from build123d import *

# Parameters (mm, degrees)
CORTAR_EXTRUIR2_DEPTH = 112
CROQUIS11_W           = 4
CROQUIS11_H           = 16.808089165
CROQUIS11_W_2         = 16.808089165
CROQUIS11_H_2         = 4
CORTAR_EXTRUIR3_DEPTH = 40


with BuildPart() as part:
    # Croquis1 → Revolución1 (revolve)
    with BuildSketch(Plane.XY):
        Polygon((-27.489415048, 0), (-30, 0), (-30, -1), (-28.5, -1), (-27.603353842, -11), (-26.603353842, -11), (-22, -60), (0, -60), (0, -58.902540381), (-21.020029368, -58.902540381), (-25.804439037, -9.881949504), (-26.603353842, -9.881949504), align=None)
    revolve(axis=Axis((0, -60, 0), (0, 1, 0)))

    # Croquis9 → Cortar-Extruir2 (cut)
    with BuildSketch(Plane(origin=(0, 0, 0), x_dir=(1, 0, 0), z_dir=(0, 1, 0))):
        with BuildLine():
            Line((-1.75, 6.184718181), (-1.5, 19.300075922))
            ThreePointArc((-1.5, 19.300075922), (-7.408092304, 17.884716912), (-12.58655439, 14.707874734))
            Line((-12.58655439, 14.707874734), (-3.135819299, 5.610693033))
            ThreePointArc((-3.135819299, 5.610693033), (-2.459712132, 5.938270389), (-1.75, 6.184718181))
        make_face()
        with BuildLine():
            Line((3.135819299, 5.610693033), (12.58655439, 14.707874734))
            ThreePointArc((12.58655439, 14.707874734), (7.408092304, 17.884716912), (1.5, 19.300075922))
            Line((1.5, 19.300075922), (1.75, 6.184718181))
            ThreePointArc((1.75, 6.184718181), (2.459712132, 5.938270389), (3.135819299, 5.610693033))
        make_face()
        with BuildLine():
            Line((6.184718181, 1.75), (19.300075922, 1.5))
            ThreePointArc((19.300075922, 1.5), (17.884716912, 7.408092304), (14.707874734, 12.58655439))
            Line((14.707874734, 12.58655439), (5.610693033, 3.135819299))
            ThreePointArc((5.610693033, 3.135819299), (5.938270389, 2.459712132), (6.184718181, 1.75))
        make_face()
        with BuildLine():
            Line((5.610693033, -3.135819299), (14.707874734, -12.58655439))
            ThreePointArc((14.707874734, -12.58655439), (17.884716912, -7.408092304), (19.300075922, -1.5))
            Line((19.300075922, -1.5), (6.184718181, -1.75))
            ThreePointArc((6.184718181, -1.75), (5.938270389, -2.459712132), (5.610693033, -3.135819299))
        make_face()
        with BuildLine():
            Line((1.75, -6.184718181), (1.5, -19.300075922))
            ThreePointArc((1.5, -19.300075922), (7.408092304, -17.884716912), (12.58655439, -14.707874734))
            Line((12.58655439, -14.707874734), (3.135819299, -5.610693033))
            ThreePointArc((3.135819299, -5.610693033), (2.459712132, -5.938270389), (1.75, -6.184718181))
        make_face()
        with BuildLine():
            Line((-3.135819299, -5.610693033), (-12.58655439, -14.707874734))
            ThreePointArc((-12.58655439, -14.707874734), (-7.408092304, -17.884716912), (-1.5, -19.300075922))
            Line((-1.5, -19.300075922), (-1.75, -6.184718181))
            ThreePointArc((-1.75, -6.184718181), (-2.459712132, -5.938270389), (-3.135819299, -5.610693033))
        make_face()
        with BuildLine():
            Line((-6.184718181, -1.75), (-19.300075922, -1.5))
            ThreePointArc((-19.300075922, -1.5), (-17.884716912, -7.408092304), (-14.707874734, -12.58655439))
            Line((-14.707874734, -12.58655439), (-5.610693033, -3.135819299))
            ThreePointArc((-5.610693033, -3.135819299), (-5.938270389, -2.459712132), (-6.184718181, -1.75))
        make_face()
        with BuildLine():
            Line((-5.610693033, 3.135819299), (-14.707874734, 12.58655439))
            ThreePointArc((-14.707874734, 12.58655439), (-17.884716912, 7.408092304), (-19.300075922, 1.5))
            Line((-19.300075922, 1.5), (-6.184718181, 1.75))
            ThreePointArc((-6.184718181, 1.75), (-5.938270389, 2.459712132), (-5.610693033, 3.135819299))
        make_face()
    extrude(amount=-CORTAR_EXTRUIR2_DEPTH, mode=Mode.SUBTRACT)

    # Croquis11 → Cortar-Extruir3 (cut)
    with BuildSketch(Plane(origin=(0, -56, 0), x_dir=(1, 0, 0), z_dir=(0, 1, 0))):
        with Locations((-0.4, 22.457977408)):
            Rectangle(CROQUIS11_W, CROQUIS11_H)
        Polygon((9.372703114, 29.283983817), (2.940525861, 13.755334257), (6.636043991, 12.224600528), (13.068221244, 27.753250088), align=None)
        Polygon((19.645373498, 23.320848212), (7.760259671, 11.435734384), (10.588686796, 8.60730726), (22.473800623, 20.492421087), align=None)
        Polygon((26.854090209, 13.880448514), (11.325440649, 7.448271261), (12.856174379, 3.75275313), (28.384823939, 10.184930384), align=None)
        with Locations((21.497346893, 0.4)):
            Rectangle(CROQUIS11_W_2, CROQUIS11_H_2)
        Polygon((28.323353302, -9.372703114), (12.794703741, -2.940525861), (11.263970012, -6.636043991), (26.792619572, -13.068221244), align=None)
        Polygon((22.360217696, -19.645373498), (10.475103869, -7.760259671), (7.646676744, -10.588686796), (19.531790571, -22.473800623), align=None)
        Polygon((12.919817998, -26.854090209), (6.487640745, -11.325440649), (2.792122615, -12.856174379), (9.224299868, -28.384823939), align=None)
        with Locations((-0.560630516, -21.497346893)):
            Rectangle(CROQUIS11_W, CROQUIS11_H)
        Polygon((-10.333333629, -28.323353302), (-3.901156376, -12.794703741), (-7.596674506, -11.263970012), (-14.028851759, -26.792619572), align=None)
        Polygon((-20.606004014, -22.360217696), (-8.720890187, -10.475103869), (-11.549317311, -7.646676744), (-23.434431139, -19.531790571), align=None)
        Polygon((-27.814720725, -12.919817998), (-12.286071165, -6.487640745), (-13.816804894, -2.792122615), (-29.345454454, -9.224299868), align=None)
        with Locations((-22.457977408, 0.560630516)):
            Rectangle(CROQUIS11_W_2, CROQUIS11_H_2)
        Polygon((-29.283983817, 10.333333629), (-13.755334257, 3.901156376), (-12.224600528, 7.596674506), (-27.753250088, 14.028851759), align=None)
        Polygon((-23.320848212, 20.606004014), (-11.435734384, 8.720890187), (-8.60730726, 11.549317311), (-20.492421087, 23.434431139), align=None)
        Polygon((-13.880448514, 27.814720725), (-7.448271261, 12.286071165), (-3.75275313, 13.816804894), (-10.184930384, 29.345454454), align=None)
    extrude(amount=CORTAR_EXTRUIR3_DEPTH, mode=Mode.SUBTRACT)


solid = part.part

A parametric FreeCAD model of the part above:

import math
import FreeCAD as App
import Part
import Sketcher
Q = App.Units.Quantity

doc = App.newDocument("Part")
params = doc.addObject("Spreadsheet::Sheet", "Params")
for row, (alias, value) in enumerate([
    ("sketch1_width", "1 mm"),
    ("sketch1_width2", "22 mm"),
    ("sketch1_width3", "1.5 mm"),
    ("revolution_angle", "360 deg"),
    ("pocket1_length", "112 mm"),
    ("sketch3_width", "4 mm"),
    ("sketch3_length", "4 mm"),
    ("pocket2_length", "40 mm"),
], start=1):
    params.set(f"A{row}", alias)
    params.set(f"B{row}", "=" + value)
    params.setAlias(f"B{row}", alias)

body = doc.addObject("PartDesign::Body", "Body")

sketch1 = body.newObject("Sketcher::SketchObject", "Sketch")
sketch1.AttachmentSupport = (doc.getObject("XY_Plane"), [""])
sketch1.MapMode = "FlatFace"
sketch1.addGeometry(Part.LineSegment(App.Vector(-27.489415, 0, 0), App.Vector(-30, 0, 0)), False)
sketch1.addGeometry(Part.LineSegment(App.Vector(-30, 0, 0), App.Vector(-30, -1, 0)), False)
sketch1.addGeometry(Part.LineSegment(App.Vector(-30, -1, 0), App.Vector(-28.5, -1, 0)), False)
sketch1.addGeometry(Part.LineSegment(App.Vector(-28.5, -1, 0), App.Vector(-27.603354, -11, 0)), False)
sketch1.addGeometry(Part.LineSegment(App.Vector(-27.603354, -11, 0), App.Vector(-26.603354, -11, 0)), False)
sketch1.addGeometry(Part.LineSegment(App.Vector(-26.603354, -11, 0), App.Vector(-22, -60, 0)), False)
sketch1.addGeometry(Part.LineSegment(App.Vector(-22, -60, 0), App.Vector(0, -60, 0)), False)
sketch1.addGeometry(Part.LineSegment(App.Vector(0, -60, 0), App.Vector(0, -58.90254, 0)), False)
sketch1.addGeometry(Part.LineSegment(App.Vector(0, -58.90254, 0), App.Vector(-21.020029, -58.90254, 0)), False)
sketch1.addGeometry(Part.LineSegment(App.Vector(-21.020029, -58.90254, 0), App.Vector(-25.804439, -9.88195, 0)), False)
sketch1.addGeometry(Part.LineSegment(App.Vector(-25.804439, -9.88195, 0), App.Vector(-26.603354, -9.88195, 0)), False)
sketch1.addGeometry(Part.LineSegment(App.Vector(-26.603354, -9.88195, 0), App.Vector(-27.489415, 0, 0)), False)
sketch1.addConstraint(Sketcher.Constraint("Coincident", 0, 2, 1, 1))
sketch1.addConstraint(Sketcher.Constraint("Coincident", 1, 2, 2, 1))
sketch1.addConstraint(Sketcher.Constraint("Coincident", 2, 2, 3, 1))
sketch1.addConstraint(Sketcher.Constraint("Coincident", 3, 2, 4, 1))
sketch1.addConstraint(Sketcher.Constraint("Coincident", 4, 2, 5, 1))
sketch1.addConstraint(Sketcher.Constraint("Coincident", 5, 2, 6, 1))
sketch1.addConstraint(Sketcher.Constraint("Coincident", 6, 2, 7, 1))
sketch1.addConstraint(Sketcher.Constraint("Coincident", 7, 2, 8, 1))
sketch1.addConstraint(Sketcher.Constraint("Coincident", 8, 2, 9, 1))
sketch1.addConstraint(Sketcher.Constraint("Coincident", 9, 2, 10, 1))
sketch1.addConstraint(Sketcher.Constraint("Coincident", 10, 2, 11, 1))
sketch1.addConstraint(Sketcher.Constraint("Coincident", 11, 2, 0, 1))
sketch1.addConstraint(Sketcher.Constraint("Horizontal", 0))
sketch1.addConstraint(Sketcher.Constraint("Vertical", 1))
sketch1.addConstraint(Sketcher.Constraint("Horizontal", 2))
sketch1.addConstraint(Sketcher.Constraint("Horizontal", 4))
sketch1.addConstraint(Sketcher.Constraint("Horizontal", 6))
sketch1.addConstraint(Sketcher.Constraint("Vertical", 7))
sketch1.addConstraint(Sketcher.Constraint("Horizontal", 8))
sketch1.addConstraint(Sketcher.Constraint("Horizontal", 10))
sketch1.addConstraint(Sketcher.Constraint("PointOnObject", 0, 2, -1))
sketch1.addConstraint(Sketcher.Constraint("PointOnObject", 6, 2, -2))
sketch1.addConstraint(Sketcher.Constraint("Parallel", 3, 11))
sketch1.addConstraint(Sketcher.Constraint("Vertical", 4, 2, 10, 2))
sketch1.addConstraint(Sketcher.Constraint("Equal", 4, 1))
sketch1.addConstraint(Sketcher.Constraint("DistanceX", 4, 1, 4, 2, 1.0))
sketch1.addConstraint(Sketcher.Constraint("DistanceX", 6, 1, 6, 2, 22.0))
sketch1.addConstraint(Sketcher.Constraint("DistanceX", 2, 1, 2, 2, 1.5))
sketch1.addConstraint(Sketcher.Constraint("DistanceX", 0, 2, -1, 1, 30.0))
sketch1.addConstraint(Sketcher.Constraint("DistanceY", 3, 2, -1, 1, 11.0))
sketch1.addConstraint(Sketcher.Constraint("DistanceY", 5, 2, -1, 1, 60.0))
sketch1.addConstraint(Sketcher.Constraint("DistanceX", 8, 2, 8, 1, 21.020029))
sketch1.addConstraint(Sketcher.Constraint("DistanceY", 7, 1, 7, 2, 1.09746))
sketch1.addConstraint(Sketcher.Constraint("Distance", 3, 10.040118))
sketch1.addConstraint(Sketcher.Constraint("DistanceX", 0, 2, 0, 1, 2.510585))
sketch1.addConstraint(Sketcher.Constraint("DistanceX", 10, 2, 10, 1, 0.798915))
sketch1.setExpression("Constraints[25]", "Params.sketch1_width")
sketch1.setExpression("Constraints[26]", "Params.sketch1_width2")
sketch1.setExpression("Constraints[27]", "Params.sketch1_width3")
revolution = body.newObject("PartDesign::Revolution", "Revolution")
revolution.Profile = sketch1
revolution.ReferenceAxis = (sketch1, ["V_Axis"])
revolution.setExpression("Angle", "Params.revolution_angle")

sketch2 = body.newObject("Sketcher::SketchObject", "Sketch001")
sketch2.AttachmentSupport = (doc.getObject("XZ_Plane"), [""])
sketch2.MapMode = "FlatFace"
sketch2.addGeometry(Part.LineSegment(App.Vector(-1.75, -6.184718, 0), App.Vector(-1.5, -19.300076, 0)), False)
sketch2.addGeometry(Part.ArcOfCircle(Part.Circle(App.Vector(0, 0, 0), App.Vector(0, 0, 1), 19.358278), math.radians(-130.555911), math.radians(-94.444089)), False)
sketch2.addGeometry(Part.LineSegment(App.Vector(-12.586554, -14.707875, 0), App.Vector(-3.135819, -5.610693, 0)), False)
sketch2.addGeometry(Part.ArcOfCircle(Part.Circle(App.Vector(0, 0, 0), App.Vector(0, 0, 1), 6.427538), math.radians(-119.200848), math.radians(-105.799152)), False)
sketch2.addGeometry(Part.LineSegment(App.Vector(3.135819, -5.610693, 0), App.Vector(12.586554, -14.707875, 0)), False)
sketch2.addGeometry(Part.ArcOfCircle(Part.Circle(App.Vector(0, 0, 0), App.Vector(0, 0, 1), 19.358278), math.radians(-85.555911), math.radians(-49.444089)), False)
sketch2.addGeometry(Part.LineSegment(App.Vector(1.5, -19.300076, 0), App.Vector(1.75, -6.184718, 0)), False)
sketch2.addGeometry(Part.ArcOfCircle(Part.Circle(App.Vector(0, 0, 0), App.Vector(0, 0, 1), 6.427538), math.radians(-74.200848), math.radians(-60.799152)), False)
sketch2.addGeometry(Part.LineSegment(App.Vector(6.184718, -1.75, 0), App.Vector(19.300076, -1.5, 0)), False)
sketch2.addGeometry(Part.ArcOfCircle(Part.Circle(App.Vector(0, 0, 0), App.Vector(0, 0, 1), 19.358278), math.radians(-40.555911), math.radians(-4.444089)), False)
sketch2.addGeometry(Part.LineSegment(App.Vector(14.707875, -12.586554, 0), App.Vector(5.610693, -3.135819, 0)), False)
sketch2.addGeometry(Part.ArcOfCircle(Part.Circle(App.Vector(0, 0, 0), App.Vector(0, 0, 1), 6.427538), math.radians(-29.200848), math.radians(-15.799152)), False)
sketch2.addGeometry(Part.LineSegment(App.Vector(5.610693, 3.135819, 0), App.Vector(14.707875, 12.586554, 0)), False)
sketch2.addGeometry(Part.ArcOfCircle(Part.Circle(App.Vector(0, 0, 0), App.Vector(0, 0, 1), 19.358278), math.radians(4.444089), math.radians(40.555911)), False)
sketch2.addGeometry(Part.LineSegment(App.Vector(19.300076, 1.5, 0), App.Vector(6.184718, 1.75, 0)), False)
sketch2.addGeometry(Part.ArcOfCircle(Part.Circle(App.Vector(0, 0, 0), App.Vector(0, 0, 1), 6.427538), math.radians(15.799152), math.radians(29.200848)), False)
sketch2.addGeometry(Part.LineSegment(App.Vector(1.75, 6.184718, 0), App.Vector(1.5, 19.300076, 0)), False)
sketch2.addGeometry(Part.ArcOfCircle(Part.Circle(App.Vector(0, 0, 0), App.Vector(0, 0, 1), 19.358278), math.radians(49.444089), math.radians(85.555911)), False)
sketch2.addGeometry(Part.LineSegment(App.Vector(12.586554, 14.707875, 0), App.Vector(3.135819, 5.610693, 0)), False)
sketch2.addGeometry(Part.ArcOfCircle(Part.Circle(App.Vector(0, 0, 0), App.Vector(0, 0, 1), 6.427538), math.radians(60.799152), math.radians(74.200848)), False)
sketch2.addGeometry(Part.LineSegment(App.Vector(-3.135819, 5.610693, 0), App.Vector(-12.586554, 14.707875, 0)), False)
sketch2.addGeometry(Part.ArcOfCircle(Part.Circle(App.Vector(0, 0, 0), App.Vector(0, 0, 1), 19.358278), math.radians(94.444089), math.radians(130.555911)), False)
sketch2.addGeometry(Part.LineSegment(App.Vector(-1.5, 19.300076, 0), App.Vector(-1.75, 6.184718, 0)), False)
sketch2.addGeometry(Part.ArcOfCircle(Part.Circle(App.Vector(0, 0, 0), App.Vector(0, 0, 1), 6.427538), math.radians(105.799152), math.radians(119.200848)), False)
sketch2.addGeometry(Part.LineSegment(App.Vector(-6.184718, 1.75, 0), App.Vector(-19.300076, 1.5, 0)), False)
sketch2.addGeometry(Part.ArcOfCircle(Part.Circle(App.Vector(0, 0, 0), App.Vector(0, 0, 1), 19.358278), math.radians(139.444089), math.radians(175.555911)), False)
sketch2.addGeometry(Part.LineSegment(App.Vector(-14.707875, 12.586554, 0), App.Vector(-5.610693, 3.135819, 0)), False)
sketch2.addGeometry(Part.ArcOfCircle(Part.Circle(App.Vector(0, 0, 0), App.Vector(0, 0, 1), 6.427538), math.radians(150.799152), math.radians(164.200848)), False)
sketch2.addGeometry(Part.LineSegment(App.Vector(-5.610693, -3.135819, 0), App.Vector(-14.707875, -12.586554, 0)), False)
sketch2.addGeometry(Part.ArcOfCircle(Part.Circle(App.Vector(0, 0, 0), App.Vector(0, 0, 1), 19.358278), math.radians(-175.555911), math.radians(-139.444089)), False)
sketch2.addGeometry(Part.LineSegment(App.Vector(-19.300076, -1.5, 0), App.Vector(-6.184718, -1.75, 0)), False)
sketch2.addGeometry(Part.ArcOfCircle(Part.Circle(App.Vector(0, 0, 0), App.Vector(0, 0, 1), 6.427538), math.radians(-164.200848), math.radians(-150.799152)), False)
sketch2.addConstraint(Sketcher.Constraint("Coincident", 0, 2, 1, 2))
sketch2.addConstraint(Sketcher.Constraint("Coincident", 1, 1, 2, 1))
sketch2.addConstraint(Sketcher.Constraint("Coincident", 2, 2, 3, 1))
sketch2.addConstraint(Sketcher.Constraint("Coincident", 3, 2, 0, 1))
sketch2.addConstraint(Sketcher.Constraint("Coincident", 4, 2, 5, 2))
sketch2.addConstraint(Sketcher.Constraint("Coincident", 5, 1, 6, 1))
sketch2.addConstraint(Sketcher.Constraint("Coincident", 6, 2, 7, 1))
sketch2.addConstraint(Sketcher.Constraint("Coincident", 7, 2, 4, 1))
sketch2.addConstraint(Sketcher.Constraint("Coincident", 8, 2, 9, 2))
sketch2.addConstraint(Sketcher.Constraint("Coincident", 9, 1, 10, 1))
sketch2.addConstraint(Sketcher.Constraint("Coincident", 10, 2, 11, 1))
sketch2.addConstraint(Sketcher.Constraint("Coincident", 11, 2, 8, 1))
sketch2.addConstraint(Sketcher.Constraint("Coincident", 12, 2, 13, 2))
sketch2.addConstraint(Sketcher.Constraint("Coincident", 13, 1, 14, 1))
sketch2.addConstraint(Sketcher.Constraint("Coincident", 14, 2, 15, 1))
sketch2.addConstraint(Sketcher.Constraint("Coincident", 15, 2, 12, 1))
sketch2.addConstraint(Sketcher.Constraint("Coincident", 16, 2, 17, 2))
sketch2.addConstraint(Sketcher.Constraint("Coincident", 17, 1, 18, 1))
sketch2.addConstraint(Sketcher.Constraint("Coincident", 18, 2, 19, 1))
sketch2.addConstraint(Sketcher.Constraint("Coincident", 19, 2, 16, 1))
sketch2.addConstraint(Sketcher.Constraint("Coincident", 20, 2, 21, 2))
sketch2.addConstraint(Sketcher.Constraint("Coincident", 21, 1, 22, 1))
sketch2.addConstraint(Sketcher.Constraint("Coincident", 22, 2, 23, 1))
sketch2.addConstraint(Sketcher.Constraint("Coincident", 23, 2, 20, 1))
sketch2.addConstraint(Sketcher.Constraint("Coincident", 24, 2, 25, 2))
sketch2.addConstraint(Sketcher.Constraint("Coincident", 25, 1, 26, 1))
sketch2.addConstraint(Sketcher.Constraint("Coincident", 26, 2, 27, 1))
sketch2.addConstraint(Sketcher.Constraint("Coincident", 27, 2, 24, 1))
sketch2.addConstraint(Sketcher.Constraint("Coincident", 28, 2, 29, 2))
sketch2.addConstraint(Sketcher.Constraint("Coincident", 29, 1, 30, 1))
sketch2.addConstraint(Sketcher.Constraint("Coincident", 30, 2, 31, 1))
sketch2.addConstraint(Sketcher.Constraint("Coincident", 31, 2, 28, 1))
sketch2.addConstraint(Sketcher.Constraint("Coincident", 1, 3, -1, 1))
sketch2.addConstraint(Sketcher.Constraint("Coincident", 3, 3, -1, 1))
sketch2.addConstraint(Sketcher.Constraint("Coincident", 5, 3, -1, 1))
sketch2.addConstraint(Sketcher.Constraint("Coincident", 7, 3, -1, 1))
sketch2.addConstraint(Sketcher.Constraint("Coincident", 9, 3, -1, 1))
sketch2.addConstraint(Sketcher.Constraint("Coincident", 11, 3, -1, 1))
sketch2.addConstraint(Sketcher.Constraint("Coincident", 13, 3, -1, 1))
sketch2.addConstraint(Sketcher.Constraint("Coincident", 15, 3, -1, 1))
sketch2.addConstraint(Sketcher.Constraint("Coincident", 17, 3, -1, 1))
sketch2.addConstraint(Sketcher.Constraint("Coincident", 19, 3, -1, 1))
sketch2.addConstraint(Sketcher.Constraint("Coincident", 21, 3, -1, 1))
sketch2.addConstraint(Sketcher.Constraint("Coincident", 23, 3, -1, 1))
sketch2.addConstraint(Sketcher.Constraint("Coincident", 25, 3, -1, 1))
sketch2.addConstraint(Sketcher.Constraint("Coincident", 27, 3, -1, 1))
sketch2.addConstraint(Sketcher.Constraint("Coincident", 29, 3, -1, 1))
sketch2.addConstraint(Sketcher.Constraint("Coincident", 31, 3, -1, 1))
sketch2.addConstraint(Sketcher.Constraint("Equal", 1, 5))
sketch2.addConstraint(Sketcher.Constraint("Equal", 3, 7))
sketch2.addConstraint(Sketcher.Constraint("Equal", 5, 9))
sketch2.addConstraint(Sketcher.Constraint("Equal", 7, 11))
sketch2.addConstraint(Sketcher.Constraint("Equal", 9, 13))
sketch2.addConstraint(Sketcher.Constraint("Equal", 11, 15))
sketch2.addConstraint(Sketcher.Constraint("Equal", 13, 17))
sketch2.addConstraint(Sketcher.Constraint("Equal", 15, 19))
sketch2.addConstraint(Sketcher.Constraint("Equal", 17, 21))
sketch2.addConstraint(Sketcher.Constraint("Equal", 19, 23))
sketch2.addConstraint(Sketcher.Constraint("Equal", 21, 25))
sketch2.addConstraint(Sketcher.Constraint("Equal", 23, 27))
sketch2.addConstraint(Sketcher.Constraint("Equal", 25, 29))
sketch2.addConstraint(Sketcher.Constraint("Equal", 27, 31))
sketch2.addConstraint(Sketcher.Constraint("Perpendicular", 0, 8))
sketch2.addConstraint(Sketcher.Constraint("Perpendicular", 2, 10))
sketch2.addConstraint(Sketcher.Constraint("Perpendicular", 4, 12))
sketch2.addConstraint(Sketcher.Constraint("Perpendicular", 6, 14))
sketch2.addConstraint(Sketcher.Constraint("Perpendicular", 8, 16))
sketch2.addConstraint(Sketcher.Constraint("Perpendicular", 10, 18))
sketch2.addConstraint(Sketcher.Constraint("Perpendicular", 12, 20))
sketch2.addConstraint(Sketcher.Constraint("Perpendicular", 14, 22))
sketch2.addConstraint(Sketcher.Constraint("Perpendicular", 16, 24))
sketch2.addConstraint(Sketcher.Constraint("Perpendicular", 18, 26))
sketch2.addConstraint(Sketcher.Constraint("Perpendicular", 20, 28))
sketch2.addConstraint(Sketcher.Constraint("Perpendicular", 22, 30))
sketch2.addConstraint(Sketcher.Constraint("Horizontal", 1, 1, 4, 2))
sketch2.addConstraint(Sketcher.Constraint("Horizontal", 0, 2, 5, 1))
sketch2.addConstraint(Sketcher.Constraint("Horizontal", 3, 2, 6, 2))
sketch2.addConstraint(Sketcher.Constraint("Horizontal", 2, 2, 7, 2))
sketch2.addConstraint(Sketcher.Constraint("Horizontal", 17, 1, 20, 2))
sketch2.addConstraint(Sketcher.Constraint("Horizontal", 16, 2, 21, 1))
sketch2.addConstraint(Sketcher.Constraint("Horizontal", 13, 1, 24, 2))
sketch2.addConstraint(Sketcher.Constraint("Horizontal", 12, 2, 25, 1))
sketch2.addConstraint(Sketcher.Constraint("Horizontal", 9, 1, 28, 2))
sketch2.addConstraint(Sketcher.Constraint("Horizontal", 8, 2, 29, 1))
sketch2.addConstraint(Sketcher.Constraint("Vertical", 9, 1, 12, 2))
sketch2.addConstraint(Sketcher.Constraint("Vertical", 8, 2, 13, 1))
sketch2.addConstraint(Sketcher.Constraint("Vertical", 5, 1, 16, 2))
sketch2.addConstraint(Sketcher.Constraint("Vertical", 4, 2, 17, 1))
sketch2.addConstraint(Sketcher.Constraint("Equal", 0, 2))
sketch2.addConstraint(Sketcher.Constraint("Equal", 6, 8))
sketch2.addConstraint(Sketcher.Constraint("Equal", 8, 10))
sketch2.addConstraint(Sketcher.Constraint("DistanceX", 0, 2, 5, 1, 3.0))
sketch2.addConstraint(Sketcher.Constraint("DistanceX", 3, 2, 6, 2, 3.5))
sketch2.addConstraint(Sketcher.Constraint("Radius", 1, 19.358278))
sketch2.addConstraint(Sketcher.Constraint("Radius", 3, 6.427538))
sketch2.addConstraint(Sketcher.Constraint("DistanceY", 0, 2, 1, 1, 4.592201))
pocket1 = body.newObject("PartDesign::Pocket", "Pocket")
pocket1.Profile = sketch2
pocket1.setExpression("Length", "Params.pocket1_length")
pocket1.Reversed = True

sketch3 = body.newObject("Sketcher::SketchObject", "Sketch002")
sketch3.AttachmentSupport = (doc.getObject("XZ_Plane"), [""])
sketch3.MapMode = "FlatFace"
sketch3.AttachmentOffset = App.Placement(App.Vector(0, 0, 56), App.Rotation())
sketch3.addGeometry(Part.LineSegment(App.Vector(-2.4, -30.862022, 0), App.Vector(-2.4, -14.053933, 0)), False)
sketch3.addGeometry(Part.LineSegment(App.Vector(-2.4, -14.053933, 0), App.Vector(1.6, -14.053933, 0)), False)
sketch3.addGeometry(Part.LineSegment(App.Vector(1.6, -14.053933, 0), App.Vector(1.6, -30.862022, 0)), False)
sketch3.addGeometry(Part.LineSegment(App.Vector(1.6, -30.862022, 0), App.Vector(-2.4, -30.862022, 0)), False)
sketch3.addGeometry(Part.LineSegment(App.Vector(9.372703, -29.283984, 0), App.Vector(2.940526, -13.755334, 0)), False)
sketch3.addGeometry(Part.LineSegment(App.Vector(2.940526, -13.755334, 0), App.Vector(6.636044, -12.224601, 0)), False)
sketch3.addGeometry(Part.LineSegment(App.Vector(6.636044, -12.224601, 0), App.Vector(13.068221, -27.75325, 0)), False)
sketch3.addGeometry(Part.LineSegment(App.Vector(13.068221, -27.75325, 0), App.Vector(9.372703, -29.283984, 0)), False)
sketch3.addGeometry(Part.LineSegment(App.Vector(19.645373, -23.320848, 0), App.Vector(7.76026, -11.435734, 0)), False)
sketch3.addGeometry(Part.LineSegment(App.Vector(7.76026, -11.435734, 0), App.Vector(10.588687, -8.607307, 0)), False)
sketch3.addGeometry(Part.LineSegment(App.Vector(10.588687, -8.607307, 0), App.Vector(22.473801, -20.492421, 0)), False)
sketch3.addGeometry(Part.LineSegment(App.Vector(22.473801, -20.492421, 0), App.Vector(19.645373, -23.320848, 0)), False)
sketch3.addGeometry(Part.LineSegment(App.Vector(26.85409, -13.880449, 0), App.Vector(11.325441, -7.448271, 0)), False)
sketch3.addGeometry(Part.LineSegment(App.Vector(11.325441, -7.448271, 0), App.Vector(12.856174, -3.752753, 0)), False)
sketch3.addGeometry(Part.LineSegment(App.Vector(12.856174, -3.752753, 0), App.Vector(28.384824, -10.18493, 0)), False)
sketch3.addGeometry(Part.LineSegment(App.Vector(28.384824, -10.18493, 0), App.Vector(26.85409, -13.880449, 0)), False)
sketch3.addGeometry(Part.LineSegment(App.Vector(13.093302, -2.4, 0), App.Vector(13.093302, 1.6, 0)), False)
sketch3.addGeometry(Part.LineSegment(App.Vector(13.093302, 1.6, 0), App.Vector(29.901391, 1.6, 0)), False)
sketch3.addGeometry(Part.LineSegment(App.Vector(29.901391, 1.6, 0), App.Vector(29.901391, -2.4, 0)), False)
sketch3.addGeometry(Part.LineSegment(App.Vector(29.901391, -2.4, 0), App.Vector(13.093302, -2.4, 0)), False)
sketch3.addGeometry(Part.LineSegment(App.Vector(28.323353, 9.372703, 0), App.Vector(12.794704, 2.940526, 0)), False)
sketch3.addGeometry(Part.LineSegment(App.Vector(12.794704, 2.940526, 0), App.Vector(11.26397, 6.636044, 0)), False)
sketch3.addGeometry(Part.LineSegment(App.Vector(11.26397, 6.636044, 0), App.Vector(26.79262, 13.068221, 0)), False)
sketch3.addGeometry(Part.LineSegment(App.Vector(26.79262, 13.068221, 0), App.Vector(28.323353, 9.372703, 0)), False)
sketch3.addGeometry(Part.LineSegment(App.Vector(22.360218, 19.645373, 0), App.Vector(10.475104, 7.76026, 0)), False)
sketch3.addGeometry(Part.LineSegment(App.Vector(10.475104, 7.76026, 0), App.Vector(7.646677, 10.588687, 0)), False)
sketch3.addGeometry(Part.LineSegment(App.Vector(7.646677, 10.588687, 0), App.Vector(19.531791, 22.473801, 0)), False)
sketch3.addGeometry(Part.LineSegment(App.Vector(19.531791, 22.473801, 0), App.Vector(22.360218, 19.645373, 0)), False)
sketch3.addGeometry(Part.LineSegment(App.Vector(12.919818, 26.85409, 0), App.Vector(6.487641, 11.325441, 0)), False)
sketch3.addGeometry(Part.LineSegment(App.Vector(6.487641, 11.325441, 0), App.Vector(2.792123, 12.856174, 0)), False)
sketch3.addGeometry(Part.LineSegment(App.Vector(2.792123, 12.856174, 0), App.Vector(9.2243, 28.384824, 0)), False)
sketch3.addGeometry(Part.LineSegment(App.Vector(9.2243, 28.384824, 0), App.Vector(12.919818, 26.85409, 0)), False)
sketch3.addGeometry(Part.LineSegment(App.Vector(-2.560631, 13.093302, 0), App.Vector(-2.560631, 29.901391, 0)), False)
sketch3.addGeometry(Part.LineSegment(App.Vector(-2.560631, 29.901391, 0), App.Vector(1.439369, 29.901391, 0)), False)
sketch3.addGeometry(Part.LineSegment(App.Vector(1.439369, 29.901391, 0), App.Vector(1.439369, 13.093302, 0)), False)
sketch3.addGeometry(Part.LineSegment(App.Vector(1.439369, 13.093302, 0), App.Vector(-2.560631, 13.093302, 0)), False)
sketch3.addGeometry(Part.LineSegment(App.Vector(-10.333334, 28.323353, 0), App.Vector(-3.901156, 12.794704, 0)), False)
sketch3.addGeometry(Part.LineSegment(App.Vector(-3.901156, 12.794704, 0), App.Vector(-7.596675, 11.26397, 0)), False)
sketch3.addGeometry(Part.LineSegment(App.Vector(-7.596675, 11.26397, 0), App.Vector(-14.028852, 26.79262, 0)), False)
sketch3.addGeometry(Part.LineSegment(App.Vector(-14.028852, 26.79262, 0), App.Vector(-10.333334, 28.323353, 0)), False)
sketch3.addGeometry(Part.LineSegment(App.Vector(-20.606004, 22.360218, 0), App.Vector(-8.72089, 10.475104, 0)), False)
sketch3.addGeometry(Part.LineSegment(App.Vector(-8.72089, 10.475104, 0), App.Vector(-11.549317, 7.646677, 0)), False)
sketch3.addGeometry(Part.LineSegment(App.Vector(-11.549317, 7.646677, 0), App.Vector(-23.434431, 19.531791, 0)), False)
sketch3.addGeometry(Part.LineSegment(App.Vector(-23.434431, 19.531791, 0), App.Vector(-20.606004, 22.360218, 0)), False)
sketch3.addGeometry(Part.LineSegment(App.Vector(-27.814721, 12.919818, 0), App.Vector(-12.286071, 6.487641, 0)), False)
sketch3.addGeometry(Part.LineSegment(App.Vector(-12.286071, 6.487641, 0), App.Vector(-13.816805, 2.792123, 0)), False)
sketch3.addGeometry(Part.LineSegment(App.Vector(-13.816805, 2.792123, 0), App.Vector(-29.345454, 9.2243, 0)), False)
sketch3.addGeometry(Part.LineSegment(App.Vector(-29.345454, 9.2243, 0), App.Vector(-27.814721, 12.919818, 0)), False)
sketch3.addGeometry(Part.LineSegment(App.Vector(-30.862022, -2.560631, 0), App.Vector(-30.862022, 1.439369, 0)), False)
sketch3.addGeometry(Part.LineSegment(App.Vector(-30.862022, 1.439369, 0), App.Vector(-14.053933, 1.439369, 0)), False)
sketch3.addGeometry(Part.LineSegment(App.Vector(-14.053933, 1.439369, 0), App.Vector(-14.053933, -2.560631, 0)), False)
sketch3.addGeometry(Part.LineSegment(App.Vector(-14.053933, -2.560631, 0), App.Vector(-30.862022, -2.560631, 0)), False)
sketch3.addGeometry(Part.LineSegment(App.Vector(-29.283984, -10.333334, 0), App.Vector(-13.755334, -3.901156, 0)), False)
sketch3.addGeometry(Part.LineSegment(App.Vector(-13.755334, -3.901156, 0), App.Vector(-12.224601, -7.596675, 0)), False)
sketch3.addGeometry(Part.LineSegment(App.Vector(-12.224601, -7.596675, 0), App.Vector(-27.75325, -14.028852, 0)), False)
sketch3.addGeometry(Part.LineSegment(App.Vector(-27.75325, -14.028852, 0), App.Vector(-29.283984, -10.333334, 0)), False)
sketch3.addGeometry(Part.LineSegment(App.Vector(-23.320848, -20.606004, 0), App.Vector(-11.435734, -8.72089, 0)), False)
sketch3.addGeometry(Part.LineSegment(App.Vector(-11.435734, -8.72089, 0), App.Vector(-8.607307, -11.549317, 0)), False)
sketch3.addGeometry(Part.LineSegment(App.Vector(-8.607307, -11.549317, 0), App.Vector(-20.492421, -23.434431, 0)), False)
sketch3.addGeometry(Part.LineSegment(App.Vector(-20.492421, -23.434431, 0), App.Vector(-23.320848, -20.606004, 0)), False)
sketch3.addGeometry(Part.LineSegment(App.Vector(-13.880449, -27.814721, 0), App.Vector(-7.448271, -12.286071, 0)), False)
sketch3.addGeometry(Part.LineSegment(App.Vector(-7.448271, -12.286071, 0), App.Vector(-3.752753, -13.816805, 0)), False)
sketch3.addGeometry(Part.LineSegment(App.Vector(-3.752753, -13.816805, 0), App.Vector(-10.18493, -29.345454, 0)), False)
sketch3.addGeometry(Part.LineSegment(App.Vector(-10.18493, -29.345454, 0), App.Vector(-13.880449, -27.814721, 0)), False)
sketch3.addConstraint(Sketcher.Constraint("Coincident", 0, 2, 1, 1))
sketch3.addConstraint(Sketcher.Constraint("Coincident", 1, 2, 2, 1))
sketch3.addConstraint(Sketcher.Constraint("Coincident", 2, 2, 3, 1))
sketch3.addConstraint(Sketcher.Constraint("Coincident", 3, 2, 0, 1))
sketch3.addConstraint(Sketcher.Constraint("Coincident", 4, 2, 5, 1))
sketch3.addConstraint(Sketcher.Constraint("Coincident", 5, 2, 6, 1))
sketch3.addConstraint(Sketcher.Constraint("Coincident", 6, 2, 7, 1))
sketch3.addConstraint(Sketcher.Constraint("Coincident", 7, 2, 4, 1))
sketch3.addConstraint(Sketcher.Constraint("Coincident", 8, 2, 9, 1))
sketch3.addConstraint(Sketcher.Constraint("Coincident", 9, 2, 10, 1))
sketch3.addConstraint(Sketcher.Constraint("Coincident", 10, 2, 11, 1))
sketch3.addConstraint(Sketcher.Constraint("Coincident", 11, 2, 8, 1))
sketch3.addConstraint(Sketcher.Constraint("Coincident", 12, 2, 13, 1))
sketch3.addConstraint(Sketcher.Constraint("Coincident", 13, 2, 14, 1))
sketch3.addConstraint(Sketcher.Constraint("Coincident", 14, 2, 15, 1))
sketch3.addConstraint(Sketcher.Constraint("Coincident", 15, 2, 12, 1))
sketch3.addConstraint(Sketcher.Constraint("Coincident", 16, 2, 17, 1))
sketch3.addConstraint(Sketcher.Constraint("Coincident", 17, 2, 18, 1))
sketch3.addConstraint(Sketcher.Constraint("Coincident", 18, 2, 19, 1))
sketch3.addConstraint(Sketcher.Constraint("Coincident", 19, 2, 16, 1))
sketch3.addConstraint(Sketcher.Constraint("Coincident", 20, 2, 21, 1))
sketch3.addConstraint(Sketcher.Constraint("Coincident", 21, 2, 22, 1))
sketch3.addConstraint(Sketcher.Constraint("Coincident", 22, 2, 23, 1))
sketch3.addConstraint(Sketcher.Constraint("Coincident", 23, 2, 20, 1))
sketch3.addConstraint(Sketcher.Constraint("Coincident", 24, 2, 25, 1))
sketch3.addConstraint(Sketcher.Constraint("Coincident", 25, 2, 26, 1))
sketch3.addConstraint(Sketcher.Constraint("Coincident", 26, 2, 27, 1))
sketch3.addConstraint(Sketcher.Constraint("Coincident", 27, 2, 24, 1))
sketch3.addConstraint(Sketcher.Constraint("Coincident", 28, 2, 29, 1))
sketch3.addConstraint(Sketcher.Constraint("Coincident", 29, 2, 30, 1))
sketch3.addConstraint(Sketcher.Constraint("Coincident", 30, 2, 31, 1))
sketch3.addConstraint(Sketcher.Constraint("Coincident", 31, 2, 28, 1))
sketch3.addConstraint(Sketcher.Constraint("Coincident", 32, 2, 33, 1))
sketch3.addConstraint(Sketcher.Constraint("Coincident", 33, 2, 34, 1))
sketch3.addConstraint(Sketcher.Constraint("Coincident", 34, 2, 35, 1))
sketch3.addConstraint(Sketcher.Constraint("Coincident", 35, 2, 32, 1))
sketch3.addConstraint(Sketcher.Constraint("Coincident", 36, 2, 37, 1))
sketch3.addConstraint(Sketcher.Constraint("Coincident", 37, 2, 38, 1))
sketch3.addConstraint(Sketcher.Constraint("Coincident", 38, 2, 39, 1))
sketch3.addConstraint(Sketcher.Constraint("Coincident", 39, 2, 36, 1))
sketch3.addConstraint(Sketcher.Constraint("Coincident", 40, 2, 41, 1))
sketch3.addConstraint(Sketcher.Constraint("Coincident", 41, 2, 42, 1))
sketch3.addConstraint(Sketcher.Constraint("Coincident", 42, 2, 43, 1))
sketch3.addConstraint(Sketcher.Constraint("Coincident", 43, 2, 40, 1))
sketch3.addConstraint(Sketcher.Constraint("Coincident", 44, 2, 45, 1))
sketch3.addConstraint(Sketcher.Constraint("Coincident", 45, 2, 46, 1))
sketch3.addConstraint(Sketcher.Constraint("Coincident", 46, 2, 47, 1))
sketch3.addConstraint(Sketcher.Constraint("Coincident", 47, 2, 44, 1))
sketch3.addConstraint(Sketcher.Constraint("Coincident", 48, 2, 49, 1))
sketch3.addConstraint(Sketcher.Constraint("Coincident", 49, 2, 50, 1))
sketch3.addConstraint(Sketcher.Constraint("Coincident", 50, 2, 51, 1))
sketch3.addConstraint(Sketcher.Constraint("Coincident", 51, 2, 48, 1))
sketch3.addConstraint(Sketcher.Constraint("Coincident", 52, 2, 53, 1))
sketch3.addConstraint(Sketcher.Constraint("Coincident", 53, 2, 54, 1))
sketch3.addConstraint(Sketcher.Constraint("Coincident", 54, 2, 55, 1))
sketch3.addConstraint(Sketcher.Constraint("Coincident", 55, 2, 52, 1))
sketch3.addConstraint(Sketcher.Constraint("Coincident", 56, 2, 57, 1))
sketch3.addConstraint(Sketcher.Constraint("Coincident", 57, 2, 58, 1))
sketch3.addConstraint(Sketcher.Constraint("Coincident", 58, 2, 59, 1))
sketch3.addConstraint(Sketcher.Constraint("Coincident", 59, 2, 56, 1))
sketch3.addConstraint(Sketcher.Constraint("Coincident", 60, 2, 61, 1))
sketch3.addConstraint(Sketcher.Constraint("Coincident", 61, 2, 62, 1))
sketch3.addConstraint(Sketcher.Constraint("Coincident", 62, 2, 63, 1))
sketch3.addConstraint(Sketcher.Constraint("Coincident", 63, 2, 60, 1))
sketch3.addConstraint(Sketcher.Constraint("Vertical", 0))
sketch3.addConstraint(Sketcher.Constraint("Horizontal", 1))
sketch3.addConstraint(Sketcher.Constraint("Vertical", 2))
sketch3.addConstraint(Sketcher.Constraint("Horizontal", 3))
sketch3.addConstraint(Sketcher.Constraint("Vertical", 16))
sketch3.addConstraint(Sketcher.Constraint("Horizontal", 17))
sketch3.addConstraint(Sketcher.Constraint("Vertical", 18))
sketch3.addConstraint(Sketcher.Constraint("Horizontal", 19))
sketch3.addConstraint(Sketcher.Constraint("Vertical", 32))
sketch3.addConstraint(Sketcher.Constraint("Horizontal", 33))
sketch3.addConstraint(Sketcher.Constraint("Vertical", 34))
sketch3.addConstraint(Sketcher.Constraint("Horizontal", 35))
sketch3.addConstraint(Sketcher.Constraint("Vertical", 48))
sketch3.addConstraint(Sketcher.Constraint("Horizontal", 49))
sketch3.addConstraint(Sketcher.Constraint("Vertical", 50))
sketch3.addConstraint(Sketcher.Constraint("Horizontal", 51))
sketch3.addConstraint(Sketcher.Constraint("Perpendicular", 4, 5))
sketch3.addConstraint(Sketcher.Constraint("Perpendicular", 5, 6))
sketch3.addConstraint(Sketcher.Constraint("Perpendicular", 6, 7))
sketch3.addConstraint(Sketcher.Constraint("Perpendicular", 8, 9))
sketch3.addConstraint(Sketcher.Constraint("Perpendicular", 9, 10))
sketch3.addConstraint(Sketcher.Constraint("Perpendicular", 10, 11))
sketch3.addConstraint(Sketcher.Constraint("Perpendicular", 12, 13))
sketch3.addConstraint(Sketcher.Constraint("Perpendicular", 13, 14))
sketch3.addConstraint(Sketcher.Constraint("Perpendicular", 14, 15))
sketch3.addConstraint(Sketcher.Constraint("Parallel", 7, 20))
sketch3.addConstraint(Sketcher.Constraint("Perpendicular", 20, 21))
sketch3.addConstraint(Sketcher.Constraint("Perpendicular", 21, 22))
sketch3.addConstraint(Sketcher.Constraint("Perpendicular", 22, 23))
sketch3.addConstraint(Sketcher.Constraint("Parallel", 11, 24))
sketch3.addConstraint(Sketcher.Constraint("Perpendicular", 24, 25))
sketch3.addConstraint(Sketcher.Constraint("Perpendicular", 25, 26))
sketch3.addConstraint(Sketcher.Constraint("Perpendicular", 26, 27))
sketch3.addConstraint(Sketcher.Constraint("Parallel", 15, 28))
sketch3.addConstraint(Sketcher.Constraint("Perpendicular", 28, 29))
sketch3.addConstraint(Sketcher.Constraint("Perpendicular", 29, 30))
sketch3.addConstraint(Sketcher.Constraint("Perpendicular", 30, 31))
sketch3.addConstraint(Sketcher.Constraint("Parallel", 23, 36))
sketch3.addConstraint(Sketcher.Constraint("Perpendicular", 36, 37))
sketch3.addConstraint(Sketcher.Constraint("Perpendicular", 37, 38))
sketch3.addConstraint(Sketcher.Constraint("Perpendicular", 38, 39))
sketch3.addConstraint(Sketcher.Constraint("Parallel", 27, 40))
sketch3.addConstraint(Sketcher.Constraint("Perpendicular", 40, 41))
sketch3.addConstraint(Sketcher.Constraint("Perpendicular", 41, 42))
sketch3.addConstraint(Sketcher.Constraint("Perpendicular", 42, 43))
sketch3.addConstraint(Sketcher.Constraint("Parallel", 31, 44))
sketch3.addConstraint(Sketcher.Constraint("Perpendicular", 44, 45))
sketch3.addConstraint(Sketcher.Constraint("Perpendicular", 45, 46))
sketch3.addConstraint(Sketcher.Constraint("Perpendicular", 46, 47))
sketch3.addConstraint(Sketcher.Constraint("Parallel", 39, 52))
sketch3.addConstraint(Sketcher.Constraint("Perpendicular", 52, 53))
sketch3.addConstraint(Sketcher.Constraint("Perpendicular", 53, 54))
sketch3.addConstraint(Sketcher.Constraint("Perpendicular", 54, 55))
sketch3.addConstraint(Sketcher.Constraint("Parallel", 43, 56))
sketch3.addConstraint(Sketcher.Constraint("Perpendicular", 56, 57))
sketch3.addConstraint(Sketcher.Constraint("Perpendicular", 57, 58))
sketch3.addConstraint(Sketcher.Constraint("Perpendicular", 58, 59))
sketch3.addConstraint(Sketcher.Constraint("Parallel", 47, 60))
sketch3.addConstraint(Sketcher.Constraint("Perpendicular", 60, 61))
sketch3.addConstraint(Sketcher.Constraint("Perpendicular", 61, 62))
sketch3.addConstraint(Sketcher.Constraint("Perpendicular", 62, 63))
sketch3.addConstraint(Sketcher.Constraint("Equal", 3, 33))
sketch3.addConstraint(Sketcher.Constraint("Equal", 19, 49))
sketch3.addConstraint(Sketcher.Constraint("Equal", 51, 0))
sketch3.addConstraint(Sketcher.Constraint("Equal", 35, 16))
sketch3.addConstraint(Sketcher.Constraint("Equal", 2, 32))
sketch3.addConstraint(Sketcher.Constraint("Equal", 18, 48))
sketch3.addConstraint(Sketcher.Constraint("Equal", 6, 8))
sketch3.addConstraint(Sketcher.Constraint("Equal", 7, 9))
sketch3.addConstraint(Sketcher.Constraint("Equal", 10, 12))
sketch3.addConstraint(Sketcher.Constraint("Equal", 11, 13))
sketch3.addConstraint(Sketcher.Constraint("Equal", 14, 20))
sketch3.addConstraint(Sketcher.Constraint("Equal", 15, 21))
sketch3.addConstraint(Sketcher.Constraint("Equal", 22, 24))
sketch3.addConstraint(Sketcher.Constraint("Equal", 23, 25))
sketch3.addConstraint(Sketcher.Constraint("Equal", 26, 28))
sketch3.addConstraint(Sketcher.Constraint("Equal", 27, 29))
sketch3.addConstraint(Sketcher.Constraint("Equal", 30, 36))
sketch3.addConstraint(Sketcher.Constraint("Equal", 31, 37))
sketch3.addConstraint(Sketcher.Constraint("Equal", 38, 40))
sketch3.addConstraint(Sketcher.Constraint("Equal", 39, 41))
sketch3.addConstraint(Sketcher.Constraint("Equal", 42, 44))
sketch3.addConstraint(Sketcher.Constraint("Equal", 43, 45))
sketch3.addConstraint(Sketcher.Constraint("Equal", 46, 52))
sketch3.addConstraint(Sketcher.Constraint("Equal", 47, 53))
sketch3.addConstraint(Sketcher.Constraint("Equal", 54, 56))
sketch3.addConstraint(Sketcher.Constraint("Equal", 55, 57))
sketch3.addConstraint(Sketcher.Constraint("Equal", 58, 60))
sketch3.addConstraint(Sketcher.Constraint("Equal", 59, 61))
sketch3.addConstraint(Sketcher.Constraint("DistanceX", 1, 1, 1, 2, 4.0))
sketch3.addConstraint(Sketcher.Constraint("Angle", 8, Q("135 deg")))
sketch3.addConstraint(Sketcher.Constraint("Distance", 5, 4.0))
sketch3.addConstraint(Sketcher.Constraint("Angle", 4, Q("112.5 deg")))
sketch3.addConstraint(Sketcher.Constraint("Angle", 12, Q("157.5 deg")))
sketch3.addConstraint(Sketcher.Constraint("DistanceX", 0, 2, -1, 1, 2.4))
sketch3.addConstraint(Sketcher.Constraint("DistanceY", -1, 1, 16, 2, 1.6))
sketch3.addConstraint(Sketcher.Constraint("DistanceX", 17, 1, 17, 2, 16.808089))
sketch3.addConstraint(Sketcher.Constraint("DistanceY", 5, 2, -1, 1, 12.224601))
sketch3.addConstraint(Sketcher.Constraint("DistanceX", -1, 1, 10, 2, 22.473801))
sketch3.addConstraint(Sketcher.Constraint("DistanceY", -1, 1, 26, 2, 22.473801))
sketch3.addConstraint(Sketcher.Constraint("DistanceX", -1, 1, 30, 2, 9.2243))
sketch3.addConstraint(Sketcher.Constraint("DistanceY", -1, 1, 46, 2, 9.2243))
sketch3.addConstraint(Sketcher.Constraint("DistanceX", 53, 2, -1, 1, 12.224601))
sketch3.addConstraint(Sketcher.Constraint("Distance", 4, 16.808089))
sketch3.addConstraint(Sketcher.Constraint("DistanceY", 2, 2, -1, 1, 30.862022))
sketch3.addConstraint(Sketcher.Constraint("DistanceX", -1, 1, 6, 2, 13.068221))
sketch3.addConstraint(Sketcher.Constraint("DistanceY", 10, 2, -1, 1, 20.492421))
sketch3.addConstraint(Sketcher.Constraint("DistanceX", -1, 1, 12, 2, 11.325441))
sketch3.addConstraint(Sketcher.Constraint("DistanceY", 12, 2, -1, 1, 7.448271))
sketch3.addConstraint(Sketcher.Constraint("DistanceX", -1, 1, 17, 2, 29.901391))
sketch3.addConstraint(Sketcher.Constraint("DistanceX", -1, 1, 21, 2, 11.26397))
sketch3.addConstraint(Sketcher.Constraint("DistanceY", -1, 1, 22, 2, 13.068221))
sketch3.addConstraint(Sketcher.Constraint("DistanceX", -1, 1, 26, 2, 19.531791))
sketch3.addConstraint(Sketcher.Constraint("DistanceY", -1, 1, 28, 2, 11.325441))
sketch3.addConstraint(Sketcher.Constraint("DistanceX", 32, 2, -1, 1, 2.560631))
sketch3.addConstraint(Sketcher.Constraint("DistanceY", -1, 1, 32, 2, 29.901391))
sketch3.addConstraint(Sketcher.Constraint("DistanceY", -1, 1, 37, 2, 11.26397))
sketch3.addConstraint(Sketcher.Constraint("DistanceX", 38, 2, -1, 1, 14.028852))
sketch3.addConstraint(Sketcher.Constraint("DistanceX", 40, 2, -1, 1, 8.72089))
sketch3.addConstraint(Sketcher.Constraint("DistanceY", -1, 1, 42, 2, 19.531791))
sketch3.addConstraint(Sketcher.Constraint("DistanceX", 44, 2, -1, 1, 12.286071))
sketch3.addConstraint(Sketcher.Constraint("DistanceX", 48, 2, -1, 1, 30.862022))
sketch3.addConstraint(Sketcher.Constraint("DistanceY", -1, 1, 48, 2, 1.439369))
sketch3.addConstraint(Sketcher.Constraint("DistanceY", 54, 2, -1, 1, 14.028852))
sketch3.addConstraint(Sketcher.Constraint("DistanceY", 56, 2, -1, 1, 8.72089))
sketch3.addConstraint(Sketcher.Constraint("DistanceX", 58, 2, -1, 1, 20.492421))
sketch3.addConstraint(Sketcher.Constraint("DistanceX", 60, 2, -1, 1, 7.448271))
sketch3.addConstraint(Sketcher.Constraint("DistanceY", 60, 2, -1, 1, 12.286071))
sketch3.setExpression("Constraints[153]", "Params.sketch3_width")
sketch3.setExpression("Constraints[155]", "Params.sketch3_length")
pocket2 = body.newObject("PartDesign::Pocket", "Pocket001")
pocket2.Profile = sketch3
pocket2.setExpression("Length", "Params.pocket2_length")

doc.recompute()
